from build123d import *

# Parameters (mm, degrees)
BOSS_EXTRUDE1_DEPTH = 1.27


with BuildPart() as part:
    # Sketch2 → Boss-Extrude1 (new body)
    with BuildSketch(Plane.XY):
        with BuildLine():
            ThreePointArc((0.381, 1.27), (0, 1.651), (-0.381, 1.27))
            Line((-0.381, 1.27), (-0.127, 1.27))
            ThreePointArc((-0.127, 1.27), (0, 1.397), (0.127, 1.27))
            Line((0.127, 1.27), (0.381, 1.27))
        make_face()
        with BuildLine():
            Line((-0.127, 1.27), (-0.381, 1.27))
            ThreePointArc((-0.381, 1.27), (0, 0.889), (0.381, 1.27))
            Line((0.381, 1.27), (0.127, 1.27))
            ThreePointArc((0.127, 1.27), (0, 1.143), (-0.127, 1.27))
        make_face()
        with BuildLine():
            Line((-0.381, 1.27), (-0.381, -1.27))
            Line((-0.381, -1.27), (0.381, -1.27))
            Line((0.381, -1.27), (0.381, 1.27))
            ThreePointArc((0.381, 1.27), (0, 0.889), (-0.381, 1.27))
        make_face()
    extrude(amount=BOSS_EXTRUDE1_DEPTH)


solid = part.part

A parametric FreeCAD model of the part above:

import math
import FreeCAD as App
import Part
import Sketcher
from FreeCAD import Vector
Q = App.Units.Quantity

doc = App.newDocument("Part")
body = doc.addObject("PartDesign::Body", "Body")

# Sketch on XY plane
sketch1 = body.newObject("Sketcher::SketchObject", "Sketch")
sketch1.AttachmentSupport = (doc.getObject("XY_Plane"), [""])
sketch1.MapMode = "FlatFace"
sketch1.addGeometry([
    Part.ArcOfCircle(Part.Circle(Vector(0, 1.27, 0), Vector(0, 0, 1), 0.381), math.radians(0), math.radians(180)),  # 0
    Part.LineSegment(Vector(-0.381, 1.27, 0), Vector(-0.381, -1.27, 0)),  # 1
    Part.LineSegment(Vector(-0.381, -1.27, 0), Vector(0.381, -1.27, 0)),  # 2
    Part.LineSegment(Vector(0.381, -1.27, 0), Vector(0.381, 1.27, 0)),  # 3
    Part.Circle(Vector(0, 1.27, 0), Vector(0, 0, 1), 0.127),  # 4
], False)
sketch1.addConstraint([
    Sketcher.Constraint("Tangent", 0, 2, 1, 1),
    Sketcher.Constraint("Coincident", 1, 2, 2, 1),
    Sketcher.Constraint("Coincident", 2, 2, 3, 1),
    Sketcher.Constraint("Tangent", 3, 2, 0, 1),
    Sketcher.Constraint("Vertical", 1),
    Sketcher.Constraint("Horizontal", 2),
    Sketcher.Constraint("Vertical", 3),
    Sketcher.Constraint("Coincident", 4, 3, 0, 3),
    Sketcher.Constraint("Symmetric", 0, 2, 2, 2, -1, 1),
    Sketcher.Constraint("Diameter", 4, Q("0.01 in")),
    Sketcher.Constraint("DistanceY", 1, 2, 1, 1, Q("0.1 in")),
    Sketcher.Constraint("Radius", 0, Q("0.015 in")),
])
pad1 = body.newObject("PartDesign::Pad", "Pad")
pad1.Profile = sketch1
pad1.Length = Q("0.05 in")

doc.recompute()
